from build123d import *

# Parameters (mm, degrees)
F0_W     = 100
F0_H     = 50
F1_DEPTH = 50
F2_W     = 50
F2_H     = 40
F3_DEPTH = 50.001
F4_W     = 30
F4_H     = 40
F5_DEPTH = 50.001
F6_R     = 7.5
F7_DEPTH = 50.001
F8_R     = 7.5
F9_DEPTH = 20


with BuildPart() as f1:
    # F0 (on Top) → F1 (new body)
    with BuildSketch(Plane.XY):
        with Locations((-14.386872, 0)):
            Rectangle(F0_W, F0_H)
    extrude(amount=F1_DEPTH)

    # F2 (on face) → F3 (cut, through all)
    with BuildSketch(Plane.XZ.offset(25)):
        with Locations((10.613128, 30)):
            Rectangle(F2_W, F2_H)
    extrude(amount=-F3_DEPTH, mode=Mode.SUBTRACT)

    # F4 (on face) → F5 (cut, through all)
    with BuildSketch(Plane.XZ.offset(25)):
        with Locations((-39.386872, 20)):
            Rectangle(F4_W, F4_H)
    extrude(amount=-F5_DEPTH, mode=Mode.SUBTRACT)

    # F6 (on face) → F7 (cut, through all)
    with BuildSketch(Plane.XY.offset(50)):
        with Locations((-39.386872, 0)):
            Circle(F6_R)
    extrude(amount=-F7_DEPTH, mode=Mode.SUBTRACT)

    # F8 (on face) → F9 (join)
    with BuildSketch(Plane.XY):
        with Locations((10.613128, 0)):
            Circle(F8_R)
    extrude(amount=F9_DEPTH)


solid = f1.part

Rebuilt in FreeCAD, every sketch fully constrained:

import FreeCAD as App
import Part
import Sketcher
Q = App.Units.Quantity

doc = App.newDocument("Part")
body = doc.addObject("PartDesign::Body", "Body")

sketch1 = body.newObject("Sketcher::SketchObject", "Sketch")
sketch1.AttachmentSupport = (doc.getObject("XY_Plane"), [""])
sketch1.MapMode = "FlatFace"
sketch1.addGeometry([
    Part.LineSegment(App.Vector(-64.386872, 25, 0), App.Vector(-64.386872, -25, 0)),
    Part.LineSegment(App.Vector(-64.386872, -25, 0), App.Vector(35.613128, -25, 0)),
    Part.LineSegment(App.Vector(35.613128, -25, 0), App.Vector(35.613128, 25, 0)),
    Part.LineSegment(App.Vector(35.613128, 25, 0), App.Vector(-64.386872, 25, 0)),
], False)
sketch1.addConstraint([
    Sketcher.Constraint("Coincident", 0, 2, 1, 1),
    Sketcher.Constraint("Coincident", 1, 2, 2, 1),
    Sketcher.Constraint("Coincident", 2, 2, 3, 1),
    Sketcher.Constraint("Coincident", 3, 2, 0, 1),
    Sketcher.Constraint("Vertical", 0),
    Sketcher.Constraint("Horizontal", 1),
    Sketcher.Constraint("Vertical", 2),
    Sketcher.Constraint("Horizontal", 3),
    Sketcher.Constraint("DistanceX", 1, 1, 1, 2, Q("100 mm")),
    Sketcher.Constraint("DistanceY", 0, 2, 0, 1, Q("50 mm")),
    Sketcher.Constraint("DistanceY", 0, 2, -1, 1, Q("25 mm")),
    Sketcher.Constraint("DistanceX", 0, 2, -1, 1, Q("64.386872 mm")),
])
pad1 = body.newObject("PartDesign::Pad", "Pad")
pad1.Profile = sketch1
pad1.Length = 50

sketch2 = body.newObject("Sketcher::SketchObject", "Sketch001")
sketch2.AttachmentSupport = (doc.getObject("XZ_Plane"), [""])
sketch2.MapMode = "FlatFace"
sketch2.AttachmentOffset = App.Placement(App.Vector(0, 0, 25), App.Rotation())
sketch2.addGeometry([
    Part.LineSegment(App.Vector(-14.386872, 50, 0), App.Vector(-14.386872, 10, 0)),
    Part.LineSegment(App.Vector(-14.386872, 10, 0), App.Vector(35.613128, 10, 0)),
    Part.LineSegment(App.Vector(35.613128, 10, 0), App.Vector(35.613128, 50, 0)),
    Part.LineSegment(App.Vector(35.613128, 50, 0), App.Vector(-14.386872, 50, 0)),
], False)
sketch2.addConstraint([
    Sketcher.Constraint("Coincident", 0, 2, 1, 1),
    Sketcher.Constraint("Coincident", 1, 2, 2, 1),
    Sketcher.Constraint("Coincident", 2, 2, 3, 1),
    Sketcher.Constraint("Coincident", 3, 2, 0, 1),
    Sketcher.Constraint("Vertical", 0),
    Sketcher.Constraint("Horizontal", 1),
    Sketcher.Constraint("Vertical", 2),
    Sketcher.Constraint("Horizontal", 3),
    Sketcher.Constraint("DistanceX", 1, 1, 1, 2, Q("50 mm")),
    Sketcher.Constraint("DistanceY", 0, 2, 0, 1, Q("40 mm")),
    Sketcher.Constraint("DistanceY", -1, 1, 0, 2, Q("10 mm")),
    Sketcher.Constraint("DistanceX", -1, 1, 1, 2, Q("35.613128 mm")),
])
pocket1 = body.newObject("PartDesign::Pocket", "Pocket")
pocket1.Profile = sketch2
pocket1.Type = "ThroughAll"

sketch3 = body.newObject("Sketcher::SketchObject", "Sketch002")
sketch3.AttachmentSupport = (doc.getObject("XZ_Plane"), [""])
sketch3.MapMode = "FlatFace"
sketch3.AttachmentOffset = App.Placement(App.Vector(0, 0, 25), App.Rotation())
sketch3.addGeometry([
    Part.LineSegment(App.Vector(-54.386872, 40, 0), App.Vector(-54.386872, 0, 0)),
    Part.LineSegment(App.Vector(-54.386872, 0, 0), App.Vector(-24.386872, 0, 0)),
    Part.LineSegment(App.Vector(-24.386872, 0, 0), App.Vector(-24.386872, 40, 0)),
    Part.LineSegment(App.Vector(-24.386872, 40, 0), App.Vector(-54.386872, 40, 0)),
], False)
sketch3.addConstraint([
    Sketcher.Constraint("Coincident", 0, 2, 1, 1),
    Sketcher.Constraint("Coincident", 1, 2, 2, 1),
    Sketcher.Constraint("Coincident", 2, 2, 3, 1),
    Sketcher.Constraint("Coincident", 3, 2, 0, 1),
    Sketcher.Constraint("Vertical", 0),
    Sketcher.Constraint("Horizontal", 1),
    Sketcher.Constraint("Vertical", 2),
    Sketcher.Constraint("Horizontal", 3),
    Sketcher.Constraint("PointOnObject", 0, 2, -1),
    Sketcher.Constraint("DistanceX", 1, 1, 1, 2, Q("30 mm")),
    Sketcher.Constraint("DistanceY", 0, 2, 0, 1, Q("40 mm")),
    Sketcher.Constraint("DistanceX", 0, 2, -1, 1, Q("54.386872 mm")),
])
pocket2 = body.newObject("PartDesign::Pocket", "Pocket001")
pocket2.Profile = sketch3
pocket2.Type = "ThroughAll"

sketch4 = body.newObject("Sketcher::SketchObject", "Sketch003")
sketch4.AttachmentSupport = (doc.getObject("XY_Plane"), [""])
sketch4.MapMode = "FlatFace"
sketch4.AttachmentOffset = App.Placement(App.Vector(0, 0, 50), App.Rotation())
sketch4.addGeometry(Part.Circle(App.Vector(-39.386872, 0, 0), App.Vector(0, 0, 1), 7.5), False)
sketch4.addConstraint([
    Sketcher.Constraint("PointOnObject", 0, 3, -1),
    Sketcher.Constraint("Diameter", 0, Q("15 mm")),
    Sketcher.Constraint("DistanceX", 0, 3, -1, 1, Q("39.386872 mm")),
])
pocket3 = body.newObject("PartDesign::Pocket", "Pocket002")
pocket3.Profile = sketch4
pocket3.Type = "ThroughAll"

sketch5 = body.newObject("Sketcher::SketchObject", "Sketch004")
sketch5.AttachmentSupport = (doc.getObject("XY_Plane"), [""])
sketch5.MapMode = "FlatFace"
sketch5.addGeometry(Part.Circle(App.Vector(10.613128, 0, 0), App.Vector(0, 0, 1), 7.5), False)
sketch5.addConstraint([
    Sketcher.Constraint("PointOnObject", 0, 3, -1),
    Sketcher.Constraint("Diameter", 0, Q("15 mm")),
    Sketcher.Constraint("DistanceX", -1, 1, 0, 3, Q("10.613128 mm")),
])
pad2 = body.newObject("PartDesign::Pad", "Pad001")
pad2.Profile = sketch5
pad2.Length = 20

doc.recompute()
